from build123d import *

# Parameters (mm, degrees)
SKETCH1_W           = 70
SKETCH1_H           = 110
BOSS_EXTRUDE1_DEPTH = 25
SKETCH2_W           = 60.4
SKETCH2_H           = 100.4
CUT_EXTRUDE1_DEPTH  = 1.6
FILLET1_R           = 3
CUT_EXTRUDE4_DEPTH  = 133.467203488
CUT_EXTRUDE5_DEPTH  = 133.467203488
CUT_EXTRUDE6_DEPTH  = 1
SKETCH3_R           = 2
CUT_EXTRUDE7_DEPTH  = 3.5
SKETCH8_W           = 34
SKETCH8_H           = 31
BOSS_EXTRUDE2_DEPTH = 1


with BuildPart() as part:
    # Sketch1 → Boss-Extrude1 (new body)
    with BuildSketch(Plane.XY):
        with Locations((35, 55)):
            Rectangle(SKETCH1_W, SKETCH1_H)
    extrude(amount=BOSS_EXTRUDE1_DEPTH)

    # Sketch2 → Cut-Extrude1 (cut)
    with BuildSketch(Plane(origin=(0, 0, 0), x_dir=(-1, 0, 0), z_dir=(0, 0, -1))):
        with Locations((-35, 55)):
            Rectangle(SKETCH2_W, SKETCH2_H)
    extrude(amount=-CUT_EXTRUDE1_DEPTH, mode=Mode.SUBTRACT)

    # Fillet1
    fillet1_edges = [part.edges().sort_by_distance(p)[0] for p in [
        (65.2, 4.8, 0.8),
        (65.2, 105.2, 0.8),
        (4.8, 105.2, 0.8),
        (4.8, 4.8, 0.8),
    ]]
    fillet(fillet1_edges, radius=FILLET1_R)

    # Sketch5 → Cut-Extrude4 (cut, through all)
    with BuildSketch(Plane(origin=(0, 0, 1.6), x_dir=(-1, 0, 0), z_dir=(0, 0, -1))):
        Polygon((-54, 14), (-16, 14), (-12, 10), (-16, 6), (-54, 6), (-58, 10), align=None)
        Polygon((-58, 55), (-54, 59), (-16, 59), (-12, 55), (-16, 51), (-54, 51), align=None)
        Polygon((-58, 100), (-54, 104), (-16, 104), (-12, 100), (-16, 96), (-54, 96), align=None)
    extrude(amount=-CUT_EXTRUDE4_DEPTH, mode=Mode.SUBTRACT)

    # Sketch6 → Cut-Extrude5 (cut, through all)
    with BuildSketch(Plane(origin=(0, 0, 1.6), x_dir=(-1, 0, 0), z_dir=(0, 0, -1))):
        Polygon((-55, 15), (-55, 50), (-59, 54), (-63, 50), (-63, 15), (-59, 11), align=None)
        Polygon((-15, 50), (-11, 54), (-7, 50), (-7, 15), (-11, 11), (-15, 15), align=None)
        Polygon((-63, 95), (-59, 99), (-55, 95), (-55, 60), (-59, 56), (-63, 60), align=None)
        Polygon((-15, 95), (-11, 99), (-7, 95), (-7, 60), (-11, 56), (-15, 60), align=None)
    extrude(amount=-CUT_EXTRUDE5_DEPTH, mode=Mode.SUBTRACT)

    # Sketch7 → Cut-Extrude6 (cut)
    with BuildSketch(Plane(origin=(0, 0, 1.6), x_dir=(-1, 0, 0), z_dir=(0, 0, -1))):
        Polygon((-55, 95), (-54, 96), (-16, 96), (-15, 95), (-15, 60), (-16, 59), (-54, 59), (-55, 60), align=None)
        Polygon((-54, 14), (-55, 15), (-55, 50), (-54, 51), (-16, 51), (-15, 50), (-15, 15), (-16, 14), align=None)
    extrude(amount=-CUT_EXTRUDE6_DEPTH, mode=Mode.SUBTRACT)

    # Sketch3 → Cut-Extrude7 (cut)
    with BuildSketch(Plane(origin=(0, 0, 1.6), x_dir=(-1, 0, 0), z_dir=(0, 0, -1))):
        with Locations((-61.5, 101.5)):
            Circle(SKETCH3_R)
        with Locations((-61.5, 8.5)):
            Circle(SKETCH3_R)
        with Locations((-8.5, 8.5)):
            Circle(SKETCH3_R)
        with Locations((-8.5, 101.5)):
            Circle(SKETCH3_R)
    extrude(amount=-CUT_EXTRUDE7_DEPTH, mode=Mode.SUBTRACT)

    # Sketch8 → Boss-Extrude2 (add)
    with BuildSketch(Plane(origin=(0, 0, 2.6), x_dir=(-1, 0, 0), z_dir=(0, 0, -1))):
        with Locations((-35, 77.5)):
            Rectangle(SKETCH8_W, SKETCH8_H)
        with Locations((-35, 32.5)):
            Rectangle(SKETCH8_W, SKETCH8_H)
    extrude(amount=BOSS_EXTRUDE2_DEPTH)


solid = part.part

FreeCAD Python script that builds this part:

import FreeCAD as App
import Part
import Sketcher
from FreeCAD import Vector


def edges_at(feature, points):
    """Names of the edges that pass closest to the given points."""
    edges = feature.Shape.Edges
    near = lambda p: min(range(len(edges)), key=lambda i: edges[i].distToShape(Part.Vertex(*p))[0])
    return sorted({f"Edge{near(p) + 1}" for p in points})


def add_polygon(sketch, points):
    """Adds a closed chain of lines whose ends are joined by coincident constraints."""
    first, n = sketch.GeometryCount, len(points)
    for a, b in zip(points, points[1:] + points[:1]):
        sketch.addGeometry(Part.LineSegment(App.Vector(*a, 0), App.Vector(*b, 0)), False)
    for i in range(n):
        sketch.addConstraint(Sketcher.Constraint("Coincident", first + i, 2, first + (i + 1) % n, 1))

doc = App.newDocument("Part")
params = doc.addObject("Spreadsheet::Sheet", "Params")
for row, (alias, value) in enumerate([
    ("sketch1_width", "70 mm"),
    ("sketch1_height", "110 mm"),
    ("pad1_length", "25 mm"),
    ("sketch2_width", "60.4 mm"),
    ("sketch2_height", "100.4 mm"),
    ("pocket1_length", "1.6 mm"),
    ("fillet_radius", "3 mm"),
    ("sketch3_width", "38 mm"),
    ("sketch4_height", "35 mm"),
    ("sketch5_width", "38 mm"),
    ("sketch5_height", "35 mm"),
    ("pocket4_length", "1 mm"),
    ("sketch6_diameter", "4 mm"),
    ("pocket5_length", "3.5 mm"),
    ("sketch7_width", "34 mm"),
    ("sketch7_height", "31 mm"),
    ("pad2_length", "1 mm"),
], start=1):
    params.set(f"A{row}", alias)
    params.set(f"B{row}", "=" + value)
    params.setAlias(f"B{row}", alias)

body = doc.addObject("PartDesign::Body", "Body")

# Sketch on XY plane
sketch1 = doc.addObject("Sketcher::SketchObject", "Sketch")
body.addObject(sketch1)
sketch1.AttachmentSupport = (doc.XY_Plane, [""])
sketch1.MapMode = "FlatFace"
add_polygon(sketch1, [(0, 110), (0, 0), (70, 0), (70, 110)])  # lines 0-3
sketch1.addConstraint([
    Sketcher.Constraint("Vertical", 0),
    Sketcher.Constraint("Horizontal", 1),
    Sketcher.Constraint("Vertical", 2),
    Sketcher.Constraint("Horizontal", 3),
    Sketcher.Constraint("Coincident", 0, 2, -1, 1),
    Sketcher.Constraint("DistanceX", 1, 1, 1, 2, 70.0),
    Sketcher.Constraint("DistanceY", 0, 2, 0, 1, 110.0),
])
sketch1.setExpression("Constraints[9]", "Params.sketch1_width")
sketch1.setExpression("Constraints[10]", "Params.sketch1_height")
pad1 = doc.addObject("PartDesign::Pad", "Pad")
body.addObject(pad1)
pad1.Profile = sketch1
pad1.setExpression("Length", "Params.pad1_length")

# Sketch on XY plane
sketch2 = doc.addObject("Sketcher::SketchObject", "Sketch001")
body.addObject(sketch2)
sketch2.AttachmentSupport = (doc.XY_Plane, [""])
sketch2.MapMode = "FlatFace"
add_polygon(sketch2, [(65, 105), (65, 5), (5, 5), (5, 105)])  # lines 0-3
sketch2.addConstraint([
    Sketcher.Constraint("Vertical", 0),
    Sketcher.Constraint("Horizontal", 1),
    Sketcher.Constraint("Vertical", 2),
    Sketcher.Constraint("Horizontal", 3),
    Sketcher.Constraint("DistanceX", 1, 2, 1, 1, 60.4),
    Sketcher.Constraint("DistanceY", 0, 2, 0, 1, 100.4),
    Sketcher.Constraint("DistanceX", -1, 1, 0, 2, 65.2),
    Sketcher.Constraint("DistanceY", -1, 1, 0, 2, 4.8),
])
sketch2.setExpression("Constraints[8]", "Params.sketch2_width")
sketch2.setExpression("Constraints[9]", "Params.sketch2_height")
pocket1 = doc.addObject("PartDesign::Pocket", "Pocket")
body.addObject(pocket1)
pocket1.Profile = sketch2
pocket1.setExpression("Length", "Params.pocket1_length")
pocket1.Reversed = True
doc.recompute()

fillet = doc.addObject("PartDesign::Fillet", "Fillet")
body.addObject(fillet)
fillet.Base = (pocket1, edges_at(pocket1, [
    (65.2, 4.8, 0.8),
    (65.2, 105.2, 0.8),
    (4.8, 105.2, 0.8),
    (4.8, 4.8, 0.8),
]))
fillet.setExpression("Radius", "Params.fillet_radius")

# Sketch on XY plane
sketch3 = doc.addObject("Sketcher::SketchObject", "Sketch002")
body.addObject(sketch3)
sketch3.AttachmentSupport = (doc.XY_Plane, [""])
sketch3.MapMode = "FlatFace"
sketch3.AttachmentOffset = App.Placement(Vector(0, 0, 1.6), App.Rotation())
add_polygon(sketch3, [(16, 14), (54, 14), (58, 10), (54, 6), (16, 6), (12, 10)])  # lines 0-5
add_polygon(sketch3, [(54, 59), (58, 55), (54, 51), (16, 51), (12, 55), (16, 59)])  # lines 6-11
add_polygon(sketch3, [(54, 104), (58, 100), (54, 96), (16, 96), (12, 100), (16, 104)])  # lines 12-17
sketch3.addConstraint([
    Sketcher.Constraint("Horizontal", 0),
    Sketcher.Constraint("Horizontal", 3),
    Sketcher.Constraint("Horizontal", 8),
    Sketcher.Constraint("Horizontal", 11),
    Sketcher.Constraint("Horizontal", 14),
    Sketcher.Constraint("Horizontal", 17),
    Sketcher.Constraint("Perpendicular", 1, 2),
    Sketcher.Constraint("Perpendicular", 2, 4),
    Sketcher.Constraint("Perpendicular", 4, 5),
    Sketcher.Constraint("Perpendicular", 5, 6),
    Sketcher.Constraint("Perpendicular", 6, 7),
    Sketcher.Constraint("Perpendicular", 7, 9),
    Sketcher.Constraint("Perpendicular", 9, 10),
    Sketcher.Constraint("Perpendicular", 10, 12),
    Sketcher.Constraint("Perpendicular", 12, 13),
    Sketcher.Constraint("Perpendicular", 13, 15),
    Sketcher.Constraint("Perpendicular", 15, 16),
    Sketcher.Constraint("Horizontal", 1, 2, 4, 2),
    Sketcher.Constraint("Horizontal", 6, 2, 9, 2),
    Sketcher.Constraint("Horizontal", 12, 2, 15, 2),
    Sketcher.Constraint("Vertical", 0, 2, 2, 2),
    Sketcher.Constraint("Vertical", 3, 2, 5, 2),
    Sketcher.Constraint("Vertical", 1, 2, 6, 2),
    Sketcher.Constraint("Vertical", 2, 2, 7, 2),
    Sketcher.Constraint("Vertical", 5, 2, 8, 2),
    Sketcher.Constraint("Vertical", 8, 2, 10, 2),
    Sketcher.Constraint("Vertical", 6, 2, 12, 2),
    Sketcher.Constraint("Vertical", 11, 2, 13, 2),
    Sketcher.Constraint("Vertical", 10, 2, 14, 2),
    Sketcher.Constraint("Vertical", 14, 2, 16, 2),
    Sketcher.Constraint("DistanceX", 0, 1, 0, 2, 38.0),
    Sketcher.Constraint("DistanceX", -1, 1, 0, 2, 54.0),
    Sketcher.Constraint("DistanceY", -1, 1, 0, 2, 14.0),
    Sketcher.Constraint("DistanceX", -1, 1, 1, 2, 58.0),
    Sketcher.Constraint("DistanceY", -1, 1, 6, 2, 55.0),
    Sketcher.Constraint("DistanceY", -1, 1, 12, 2, 100.0),
])
sketch3.setExpression("Constraints[48]", "Params.sketch3_width")
pocket2 = doc.addObject("PartDesign::Pocket", "Pocket001")
body.addObject(pocket2)
pocket2.Profile = sketch3
pocket2.Type = "ThroughAll"
pocket2.Reversed = True

# Sketch on XY plane
sketch4 = doc.addObject("Sketcher::SketchObject", "Sketch003")
body.addObject(sketch4)
sketch4.AttachmentSupport = (doc.XY_Plane, [""])
sketch4.MapMode = "FlatFace"
sketch4.AttachmentOffset = App.Placement(Vector(0, 0, 1.6), App.Rotation())
add_polygon(sketch4, [(55, 15), (55, 50), (59, 54), (63, 50), (63, 15), (59, 11)])  # lines 0-5
add_polygon(sketch4, [(11, 54), (15, 50), (15, 15), (11, 11), (7, 15), (7, 50)])  # lines 6-11
add_polygon(sketch4, [(59, 99), (63, 95), (63, 60), (59, 56), (55, 60), (55, 95)])  # lines 12-17
add_polygon(sketch4, [(11, 99), (15, 95), (15, 60), (11, 56), (7, 60), (7, 95)])  # lines 18-23
sketch4.addConstraint([
    Sketcher.Constraint("Vertical", 0),
    Sketcher.Constraint("Vertical", 3),
    Sketcher.Constraint("Vertical", 7),
    Sketcher.Constraint("Vertical", 10),
    Sketcher.Constraint("Vertical", 13),
    Sketcher.Constraint("Vertical", 16),
    Sketcher.Constraint("Vertical", 19),
    Sketcher.Constraint("Vertical", 22),
    Sketcher.Constraint("Perpendicular", 1, 2),
    Sketcher.Constraint("Perpendicular", 2, 4),
    Sketcher.Constraint("Perpendicular", 4, 5),
    Sketcher.Constraint("Parallel", 5, 6),
    Sketcher.Constraint("Perpendicular", 6, 8),
    Sketcher.Constraint("Perpendicular", 8, 9),
    Sketcher.Constraint("Perpendicular", 9, 11),
    Sketcher.Constraint("Perpendicular", 11, 12),
    Sketcher.Constraint("Perpendicular", 12, 14),
    Sketcher.Constraint("Perpendicular", 14, 15),
    Sketcher.Constraint("Perpendicular", 15, 17),
    Sketcher.Constraint("Perpendicular", 17, 18),
    Sketcher.Constraint("Perpendicular", 18, 20),
    Sketcher.Constraint("Perpendicular", 20, 21),
    Sketcher.Constraint("Perpendicular", 21, 23),
    Sketcher.Constraint("Horizontal", 0, 2, 2, 2),
    Sketcher.Constraint("Horizontal", 3, 2, 5, 2),
    Sketcher.Constraint("Horizontal", 2, 2, 6, 2),
    Sketcher.Constraint("Horizontal", 5, 2, 7, 2),
    Sketcher.Constraint("Horizontal", 4, 2, 8, 2),
    Sketcher.Constraint("Horizontal", 7, 2, 9, 2),
    Sketcher.Constraint("Horizontal", 6, 2, 10, 2),
    Sketcher.Constraint("Horizontal", 13, 2, 15, 2),
    Sketcher.Constraint("Horizontal", 12, 2, 16, 2),
    Sketcher.Constraint("Horizontal", 16, 2, 18, 2),
    Sketcher.Constraint("Horizontal", 15, 2, 19, 2),
    Sketcher.Constraint("Horizontal", 14, 2, 20, 2),
    Sketcher.Constraint("Horizontal", 19, 2, 21, 2),
    Sketcher.Constraint("Horizontal", 18, 2, 22, 2),
    Sketcher.Constraint("Vertical", 1, 2, 4, 2),
    Sketcher.Constraint("Vertical", 3, 2, 12, 2),
    Sketcher.Constraint("Vertical", 4, 2, 14, 2),
    Sketcher.Constraint("Vertical", 7, 2, 18, 2),
    Sketcher.Constraint("Equal", 10, 13),
    Sketcher.Constraint("DistanceY", 0, 1, 0, 2, 35.0),
    Sketcher.Constraint("DistanceX", -1, 1, 0, 2, 55.0),
    Sketcher.Constraint("DistanceY", -1, 1, 0, 2, 50.0),
    Sketcher.Constraint("DistanceX", -1, 1, 1, 2, 59.0),
    Sketcher.Constraint("DistanceX", -1, 1, 6, 2, 15.0),
    Sketcher.Constraint("DistanceY", -1, 1, 12, 2, 95.0),
])
sketch4.setExpression("Constraints[66]", "Params.sketch4_height")
pocket3 = doc.addObject("PartDesign::Pocket", "Pocket002")
body.addObject(pocket3)
pocket3.Profile = sketch4
pocket3.Type = "ThroughAll"
pocket3.Reversed = True

# Sketch on XY plane
sketch5 = doc.addObject("Sketcher::SketchObject", "Sketch004")
body.addObject(sketch5)
sketch5.AttachmentSupport = (doc.XY_Plane, [""])
sketch5.MapMode = "FlatFace"
sketch5.AttachmentOffset = App.Placement(Vector(0, 0, 1.6), App.Rotation())
add_polygon(sketch5, [(54, 96), (55, 95), (55, 60), (54, 59), (16, 59), (15, 60), (15, 95), (16, 96)])  # lines 0-7
add_polygon(sketch5, [(55, 15), (54, 14), (16, 14), (15, 15), (15, 50), (16, 51), (54, 51), (55, 50)])  # lines 8-15
sketch5.addConstraint([
    Sketcher.Constraint("Vertical", 1),
    Sketcher.Constraint("Horizontal", 3),
    Sketcher.Constraint("Vertical", 5),
    Sketcher.Constraint("Horizontal", 7),
    Sketcher.Constraint("Horizontal", 9),
    Sketcher.Constraint("Vertical", 11),
    Sketcher.Constraint("Horizontal", 13),
    Sketcher.Constraint("Vertical", 15),
    Sketcher.Constraint("Perpendicular", 0, 2),
    Sketcher.Constraint("Perpendicular", 2, 4),
    Sketcher.Constraint("Perpendicular", 4, 6),
    Sketcher.Constraint("Parallel", 6, 8),
    Sketcher.Constraint("Perpendicular", 8, 10),
    Sketcher.Constraint("Perpendicular", 10, 12),
    Sketcher.Constraint("Perpendicular", 12, 14),
    Sketcher.Constraint("Horizontal", 1, 2, 4, 2),
    Sketcher.Constraint("Horizontal", 0, 2, 5, 2),
    Sketcher.Constraint("Horizontal", 11, 2, 14, 2),
    Sketcher.Constraint("Horizontal", 10, 2, 15, 2),
    Sketcher.Constraint("Vertical", 3, 2, 6, 2),
    Sketcher.Constraint("Vertical", 2, 2, 7, 2),
    Sketcher.Constraint("Vertical", 7, 2, 8, 2),
    Sketcher.Constraint("Vertical", 6, 2, 9, 2),
    Sketcher.Constraint("Vertical", 5, 2, 10, 2),
    Sketcher.Constraint("Vertical", 9, 2, 12, 2),
    Sketcher.Constraint("Equal", 5, 11),
    Sketcher.Constraint("DistanceX", 3, 2, 3, 1, 38.0),
    Sketcher.Constraint("DistanceY", 1, 2, 1, 1, 35.0),
    Sketcher.Constraint("DistanceX", -1, 1, 0, 2, 55.0),
    Sketcher.Constraint("DistanceY", -1, 1, 0, 2, 95.0),
    Sketcher.Constraint("DistanceX", -1, 1, 2, 2, 54.0),
    Sketcher.Constraint("DistanceY", -1, 1, 8, 2, 14.0),
])
sketch5.setExpression("Constraints[42]", "Params.sketch5_width")
sketch5.setExpression("Constraints[43]", "Params.sketch5_height")
pocket4 = doc.addObject("PartDesign::Pocket", "Pocket003")
body.addObject(pocket4)
pocket4.Profile = sketch5
pocket4.setExpression("Length", "Params.pocket4_length")
pocket4.Reversed = True

# Sketch on XY plane
sketch6 = doc.addObject("Sketcher::SketchObject", "Sketch005")
body.addObject(sketch6)
sketch6.AttachmentSupport = (doc.XY_Plane, [""])
sketch6.MapMode = "FlatFace"
sketch6.AttachmentOffset = App.Placement(Vector(0, 0, 1.6), App.Rotation())
sketch6.addGeometry([
    Part.Circle(Vector(61.5, 101.5, 0), Vector(0, 0, 1), 2),
    Part.Circle(Vector(61.5, 8.5, 0), Vector(0, 0, 1), 2),
    Part.Circle(Vector(8.5, 8.5, 0), Vector(0, 0, 1), 2),
    Part.Circle(Vector(8.5, 101.5, 0), Vector(0, 0, 1), 2),
], False)
sketch6.addConstraint([
    Sketcher.Constraint("Equal", 0, 1),
    Sketcher.Constraint("Equal", 1, 2),
    Sketcher.Constraint("Equal", 2, 3),
    Sketcher.Constraint("Horizontal", 1, 3, 2, 3),
    Sketcher.Constraint("Horizontal", 0, 3, 3, 3),
    Sketcher.Constraint("Vertical", 0, 3, 1, 3),
    Sketcher.Constraint("Vertical", 2, 3, 3, 3),
    Sketcher.Constraint("Diameter", 0, 4.0),
    Sketcher.Constraint("DistanceY", 1, 3, 0, 3, 93.0),
    Sketcher.Constraint("DistanceX", 2, 3, 1, 3, 53.0),
    Sketcher.Constraint("DistanceX", -1, 1, 0, 3, 61.5),
    Sketcher.Constraint("DistanceY", -1, 1, 0, 3, 101.5),
])
sketch6.setExpression("Constraints[7]", "Params.sketch6_diameter")
pocket5 = doc.addObject("PartDesign::Pocket", "Pocket004")
body.addObject(pocket5)
pocket5.Profile = sketch6
pocket5.setExpression("Length", "Params.pocket5_length")
pocket5.Reversed = True

# Sketch on XY plane
sketch7 = doc.addObject("Sketcher::SketchObject", "Sketch006")
body.addObject(sketch7)
sketch7.AttachmentSupport = (doc.XY_Plane, [""])
sketch7.MapMode = "FlatFace"
sketch7.AttachmentOffset = App.Placement(Vector(0, 0, 2.6), App.Rotation())
add_polygon(sketch7, [(52, 93), (52, 62), (18, 62), (18, 93)])  # lines 0-3
add_polygon(sketch7, [(52, 48), (52, 17), (18, 17), (18, 48)])  # lines 4-7
sketch7.addConstraint([
    Sketcher.Constraint("Vertical", 0),
    Sketcher.Constraint("Horizontal", 1),
    Sketcher.Constraint("Vertical", 2),
    Sketcher.Constraint("Horizontal", 3),
    Sketcher.Constraint("Vertical", 4),
    Sketcher.Constraint("Horizontal", 5),
    Sketcher.Constraint("Vertical", 6),
    Sketcher.Constraint("Horizontal", 7),
    Sketcher.Constraint("Vertical", 3, 2, 4, 2),
    Sketcher.Constraint("Vertical", 2, 2, 5, 2),
    Sketcher.Constraint("Equal", 2, 4),
    Sketcher.Constraint("DistanceX", 1, 2, 1, 1, 34.0),
    Sketcher.Constraint("DistanceY", 0, 2, 0, 1, 31.0),
    Sketcher.Constraint("DistanceX", -1, 1, 0, 2, 52.0),
    Sketcher.Constraint("DistanceY", -1, 1, 0, 2, 62.0),
    Sketcher.Constraint("DistanceY", -1, 1, 4, 2, 17.0),
])
sketch7.setExpression("Constraints[19]", "Params.sketch7_width")
sketch7.setExpression("Constraints[20]", "Params.sketch7_height")
pad2 = doc.addObject("PartDesign::Pad", "Pad001")
body.addObject(pad2)
pad2.Profile = sketch7
pad2.setExpression("Length", "Params.pad2_length")
pad2.Reversed = True

doc.recompute()
